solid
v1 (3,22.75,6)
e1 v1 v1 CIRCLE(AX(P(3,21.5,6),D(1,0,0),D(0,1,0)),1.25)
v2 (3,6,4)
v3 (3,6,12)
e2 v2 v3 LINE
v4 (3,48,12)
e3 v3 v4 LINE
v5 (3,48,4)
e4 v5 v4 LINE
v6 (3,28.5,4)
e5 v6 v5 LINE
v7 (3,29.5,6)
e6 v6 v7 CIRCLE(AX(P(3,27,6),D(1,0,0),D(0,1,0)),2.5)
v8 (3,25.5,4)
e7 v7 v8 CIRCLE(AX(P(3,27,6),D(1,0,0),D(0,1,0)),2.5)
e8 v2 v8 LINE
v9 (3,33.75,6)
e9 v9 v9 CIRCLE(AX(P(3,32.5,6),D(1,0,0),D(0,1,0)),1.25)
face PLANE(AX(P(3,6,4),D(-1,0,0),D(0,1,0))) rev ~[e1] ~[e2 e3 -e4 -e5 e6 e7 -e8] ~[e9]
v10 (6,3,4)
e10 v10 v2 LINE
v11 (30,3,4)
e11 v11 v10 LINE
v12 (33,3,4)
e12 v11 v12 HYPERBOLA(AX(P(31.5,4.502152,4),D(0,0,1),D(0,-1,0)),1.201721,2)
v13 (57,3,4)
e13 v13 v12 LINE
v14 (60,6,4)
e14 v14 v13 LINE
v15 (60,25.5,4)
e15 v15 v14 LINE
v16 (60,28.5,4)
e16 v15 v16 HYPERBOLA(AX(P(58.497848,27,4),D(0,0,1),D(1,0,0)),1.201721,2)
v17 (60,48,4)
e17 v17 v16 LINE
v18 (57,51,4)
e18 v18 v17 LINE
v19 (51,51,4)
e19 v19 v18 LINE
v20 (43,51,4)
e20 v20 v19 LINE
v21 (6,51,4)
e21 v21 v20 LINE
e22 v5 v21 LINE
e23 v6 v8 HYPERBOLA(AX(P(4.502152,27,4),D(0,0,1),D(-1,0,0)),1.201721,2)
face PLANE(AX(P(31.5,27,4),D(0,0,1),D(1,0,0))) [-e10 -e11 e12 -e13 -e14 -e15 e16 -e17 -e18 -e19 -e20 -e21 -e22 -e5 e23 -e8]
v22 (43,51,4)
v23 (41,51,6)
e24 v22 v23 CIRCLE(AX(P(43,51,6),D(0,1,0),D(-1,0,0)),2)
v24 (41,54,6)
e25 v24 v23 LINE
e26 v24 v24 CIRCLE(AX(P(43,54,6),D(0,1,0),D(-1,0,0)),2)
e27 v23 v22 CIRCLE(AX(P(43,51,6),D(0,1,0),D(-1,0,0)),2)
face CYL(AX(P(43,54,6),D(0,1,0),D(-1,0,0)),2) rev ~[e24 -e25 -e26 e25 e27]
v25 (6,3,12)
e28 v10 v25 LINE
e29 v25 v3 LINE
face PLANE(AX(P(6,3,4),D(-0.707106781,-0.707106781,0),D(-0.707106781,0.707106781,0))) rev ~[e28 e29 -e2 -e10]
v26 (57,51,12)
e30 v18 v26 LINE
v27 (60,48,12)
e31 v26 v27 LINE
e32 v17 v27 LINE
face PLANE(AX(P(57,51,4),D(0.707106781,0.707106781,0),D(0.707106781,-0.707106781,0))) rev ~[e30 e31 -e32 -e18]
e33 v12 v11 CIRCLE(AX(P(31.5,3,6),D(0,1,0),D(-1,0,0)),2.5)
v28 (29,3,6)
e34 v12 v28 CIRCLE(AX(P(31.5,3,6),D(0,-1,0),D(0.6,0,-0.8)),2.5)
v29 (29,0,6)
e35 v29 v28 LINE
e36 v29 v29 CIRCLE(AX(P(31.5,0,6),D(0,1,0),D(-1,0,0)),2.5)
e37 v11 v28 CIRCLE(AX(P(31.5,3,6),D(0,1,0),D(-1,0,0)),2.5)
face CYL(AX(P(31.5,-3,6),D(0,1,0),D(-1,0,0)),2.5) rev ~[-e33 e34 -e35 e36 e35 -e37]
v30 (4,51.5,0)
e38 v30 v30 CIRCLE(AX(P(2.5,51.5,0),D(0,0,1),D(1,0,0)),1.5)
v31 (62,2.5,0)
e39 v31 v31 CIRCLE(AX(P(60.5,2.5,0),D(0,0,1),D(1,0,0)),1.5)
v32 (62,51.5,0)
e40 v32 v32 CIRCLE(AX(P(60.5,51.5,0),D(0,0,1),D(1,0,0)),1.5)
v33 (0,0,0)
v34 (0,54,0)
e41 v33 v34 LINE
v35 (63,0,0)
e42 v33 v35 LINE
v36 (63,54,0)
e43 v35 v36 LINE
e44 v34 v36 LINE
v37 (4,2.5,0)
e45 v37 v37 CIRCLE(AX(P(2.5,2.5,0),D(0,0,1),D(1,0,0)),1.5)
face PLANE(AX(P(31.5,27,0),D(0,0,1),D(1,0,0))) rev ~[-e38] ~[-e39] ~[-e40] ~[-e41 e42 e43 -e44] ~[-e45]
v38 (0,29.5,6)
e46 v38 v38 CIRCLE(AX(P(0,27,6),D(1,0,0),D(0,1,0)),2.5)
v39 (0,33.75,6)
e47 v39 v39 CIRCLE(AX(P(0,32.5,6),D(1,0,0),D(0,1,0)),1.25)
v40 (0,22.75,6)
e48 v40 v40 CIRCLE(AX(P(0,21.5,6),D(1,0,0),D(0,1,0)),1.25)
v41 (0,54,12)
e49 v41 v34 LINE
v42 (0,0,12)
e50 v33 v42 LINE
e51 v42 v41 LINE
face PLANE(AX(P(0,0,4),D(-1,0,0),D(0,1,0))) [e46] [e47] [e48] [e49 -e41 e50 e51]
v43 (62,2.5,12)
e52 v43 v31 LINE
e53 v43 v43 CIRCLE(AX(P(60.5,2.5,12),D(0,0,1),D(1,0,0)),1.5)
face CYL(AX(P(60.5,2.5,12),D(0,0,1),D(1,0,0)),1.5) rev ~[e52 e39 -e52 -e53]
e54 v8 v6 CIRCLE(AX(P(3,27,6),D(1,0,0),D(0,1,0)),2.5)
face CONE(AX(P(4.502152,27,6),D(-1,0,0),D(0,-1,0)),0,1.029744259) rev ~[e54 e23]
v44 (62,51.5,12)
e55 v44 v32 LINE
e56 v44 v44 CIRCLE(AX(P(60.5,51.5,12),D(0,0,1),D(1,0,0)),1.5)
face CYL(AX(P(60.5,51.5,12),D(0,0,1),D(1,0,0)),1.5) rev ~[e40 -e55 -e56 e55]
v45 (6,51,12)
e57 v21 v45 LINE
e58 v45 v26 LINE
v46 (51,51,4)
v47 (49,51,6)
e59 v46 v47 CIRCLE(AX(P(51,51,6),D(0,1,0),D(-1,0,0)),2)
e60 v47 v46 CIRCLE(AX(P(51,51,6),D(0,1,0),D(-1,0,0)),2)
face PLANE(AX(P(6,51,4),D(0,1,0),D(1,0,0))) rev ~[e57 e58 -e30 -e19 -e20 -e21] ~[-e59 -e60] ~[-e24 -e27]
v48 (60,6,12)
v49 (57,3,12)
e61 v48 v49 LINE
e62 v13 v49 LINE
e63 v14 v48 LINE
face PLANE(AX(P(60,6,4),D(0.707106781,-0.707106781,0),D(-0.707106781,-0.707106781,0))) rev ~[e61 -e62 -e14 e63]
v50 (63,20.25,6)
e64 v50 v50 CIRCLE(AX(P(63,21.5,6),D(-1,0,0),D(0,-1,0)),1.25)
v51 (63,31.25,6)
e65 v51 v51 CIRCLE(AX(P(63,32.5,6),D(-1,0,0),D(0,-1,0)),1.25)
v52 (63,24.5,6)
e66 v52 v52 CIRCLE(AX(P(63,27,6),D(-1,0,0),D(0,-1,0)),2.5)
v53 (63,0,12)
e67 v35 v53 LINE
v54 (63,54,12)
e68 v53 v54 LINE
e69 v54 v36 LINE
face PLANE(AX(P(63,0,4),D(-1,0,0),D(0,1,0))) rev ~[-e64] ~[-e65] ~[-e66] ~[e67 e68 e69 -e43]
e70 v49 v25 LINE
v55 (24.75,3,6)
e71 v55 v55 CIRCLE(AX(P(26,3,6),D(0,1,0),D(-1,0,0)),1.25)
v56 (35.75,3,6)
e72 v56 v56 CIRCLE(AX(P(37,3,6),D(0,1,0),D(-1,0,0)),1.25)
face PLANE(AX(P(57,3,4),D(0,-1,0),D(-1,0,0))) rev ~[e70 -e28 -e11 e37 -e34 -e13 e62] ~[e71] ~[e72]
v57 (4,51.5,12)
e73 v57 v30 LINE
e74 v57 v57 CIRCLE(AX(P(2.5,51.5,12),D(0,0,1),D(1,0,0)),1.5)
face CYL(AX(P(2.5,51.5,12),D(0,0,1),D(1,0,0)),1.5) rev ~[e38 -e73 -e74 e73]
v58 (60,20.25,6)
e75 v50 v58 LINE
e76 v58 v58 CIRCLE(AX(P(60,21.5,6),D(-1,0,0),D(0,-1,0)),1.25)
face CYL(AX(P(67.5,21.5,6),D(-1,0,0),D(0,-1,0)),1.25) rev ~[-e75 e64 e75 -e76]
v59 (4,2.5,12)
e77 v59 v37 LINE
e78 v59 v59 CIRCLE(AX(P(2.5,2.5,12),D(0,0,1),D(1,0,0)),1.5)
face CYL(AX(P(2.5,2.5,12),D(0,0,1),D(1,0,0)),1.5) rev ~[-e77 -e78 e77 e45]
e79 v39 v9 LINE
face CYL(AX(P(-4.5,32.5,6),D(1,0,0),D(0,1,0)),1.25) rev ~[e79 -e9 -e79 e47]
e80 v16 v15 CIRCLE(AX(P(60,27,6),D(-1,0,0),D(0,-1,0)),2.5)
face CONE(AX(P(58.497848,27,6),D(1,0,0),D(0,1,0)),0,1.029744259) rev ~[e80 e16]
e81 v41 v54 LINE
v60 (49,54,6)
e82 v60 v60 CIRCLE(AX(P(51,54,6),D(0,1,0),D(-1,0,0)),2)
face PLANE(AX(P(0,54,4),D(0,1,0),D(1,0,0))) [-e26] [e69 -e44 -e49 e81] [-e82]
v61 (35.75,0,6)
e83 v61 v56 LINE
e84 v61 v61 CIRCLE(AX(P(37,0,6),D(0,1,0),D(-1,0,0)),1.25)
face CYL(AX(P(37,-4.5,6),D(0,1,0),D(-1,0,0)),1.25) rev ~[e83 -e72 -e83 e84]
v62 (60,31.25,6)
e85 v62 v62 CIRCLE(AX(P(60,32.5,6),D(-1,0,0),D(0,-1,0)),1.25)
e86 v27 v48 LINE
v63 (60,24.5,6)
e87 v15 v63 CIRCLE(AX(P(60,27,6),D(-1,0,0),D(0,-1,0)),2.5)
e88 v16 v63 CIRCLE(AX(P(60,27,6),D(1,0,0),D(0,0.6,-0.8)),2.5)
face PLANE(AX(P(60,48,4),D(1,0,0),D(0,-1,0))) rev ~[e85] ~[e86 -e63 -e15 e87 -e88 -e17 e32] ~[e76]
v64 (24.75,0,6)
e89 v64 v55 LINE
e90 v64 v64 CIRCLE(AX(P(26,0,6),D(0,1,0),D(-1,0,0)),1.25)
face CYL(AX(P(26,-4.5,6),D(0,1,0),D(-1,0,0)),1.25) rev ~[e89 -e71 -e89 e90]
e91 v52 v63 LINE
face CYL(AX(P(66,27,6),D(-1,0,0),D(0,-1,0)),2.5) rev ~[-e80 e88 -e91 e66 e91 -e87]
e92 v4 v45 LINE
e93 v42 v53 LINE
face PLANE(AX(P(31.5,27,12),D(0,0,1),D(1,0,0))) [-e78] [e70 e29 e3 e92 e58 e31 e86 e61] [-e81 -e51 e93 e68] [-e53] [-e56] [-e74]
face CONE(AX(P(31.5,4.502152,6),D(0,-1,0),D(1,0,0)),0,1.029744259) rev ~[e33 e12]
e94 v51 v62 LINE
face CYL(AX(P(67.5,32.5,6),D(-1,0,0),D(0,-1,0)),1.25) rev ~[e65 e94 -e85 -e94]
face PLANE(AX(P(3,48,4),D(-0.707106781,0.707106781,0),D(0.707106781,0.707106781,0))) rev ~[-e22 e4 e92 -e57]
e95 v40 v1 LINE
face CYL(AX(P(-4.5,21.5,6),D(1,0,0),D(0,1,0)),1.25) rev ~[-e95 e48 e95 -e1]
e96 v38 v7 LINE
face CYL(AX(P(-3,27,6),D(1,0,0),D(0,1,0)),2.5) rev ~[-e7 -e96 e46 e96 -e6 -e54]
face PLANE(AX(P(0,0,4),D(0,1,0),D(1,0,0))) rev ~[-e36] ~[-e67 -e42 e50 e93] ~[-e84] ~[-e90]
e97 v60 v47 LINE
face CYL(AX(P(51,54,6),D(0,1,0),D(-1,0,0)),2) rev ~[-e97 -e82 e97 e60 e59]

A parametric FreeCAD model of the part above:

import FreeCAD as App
import Part
import Sketcher
Q = App.Units.Quantity


def add_polygon(sketch, points):
    """Adds a closed chain of lines whose ends are joined by coincident constraints."""
    first, n = sketch.GeometryCount, len(points)
    for a, b in zip(points, points[1:] + points[:1]):
        sketch.addGeometry(Part.LineSegment(App.Vector(*a, 0), App.Vector(*b, 0)), False)
    for i in range(n):
        sketch.addConstraint(Sketcher.Constraint("Coincident", first + i, 2, first + (i + 1) % n, 1))

doc = App.newDocument("Part")
body = doc.addObject("PartDesign::Body", "Body")

sketch1 = doc.addObject("Sketcher::SketchObject", "Sketch")
body.addObject(sketch1)
sketch1.AttachmentSupport = (doc.XY_Plane, [""])
sketch1.MapMode = "FlatFace"
add_polygon(sketch1, [(0, 54), (0, 0), (63, 0), (63, 54)])
sketch1.addConstraint(Sketcher.Constraint("Vertical", 0))
sketch1.addConstraint(Sketcher.Constraint("Horizontal", 1))
sketch1.addConstraint(Sketcher.Constraint("Vertical", 2))
sketch1.addConstraint(Sketcher.Constraint("Horizontal", 3))
sketch1.addConstraint(Sketcher.Constraint("Coincident", 0, 2, -1, 1))
sketch1.addConstraint(Sketcher.Constraint("DistanceX", 1, 1, 1, 2, Q("63 mm")))
sketch1.addConstraint(Sketcher.Constraint("DistanceY", 0, 2, 0, 1, Q("54 mm")))
pad1 = doc.addObject("PartDesign::Pad", "Pad")
body.addObject(pad1)
pad1.Profile = sketch1
pad1.Length = 4

sketch2 = doc.addObject("Sketcher::SketchObject", "Sketch001")
body.addObject(sketch2)
sketch2.AttachmentSupport = (doc.XY_Plane, [""])
sketch2.MapMode = "FlatFace"
sketch2.AttachmentOffset = App.Placement(App.Vector(0, 0, 4), App.Rotation())
add_polygon(sketch2, [(0, 54), (0, 0), (63, 0), (63, 54)])
add_polygon(sketch2, [(3, 6), (3, 48), (6, 51), (57, 51), (60, 48), (60, 6), (57, 3), (6, 3)])
sketch2.addConstraint(Sketcher.Constraint("Vertical", 0))
sketch2.addConstraint(Sketcher.Constraint("Horizontal", 1))
sketch2.addConstraint(Sketcher.Constraint("Vertical", 2))
sketch2.addConstraint(Sketcher.Constraint("Horizontal", 3))
sketch2.addConstraint(Sketcher.Constraint("Vertical", 4))
sketch2.addConstraint(Sketcher.Constraint("Horizontal", 6))
sketch2.addConstraint(Sketcher.Constraint("Vertical", 8))
sketch2.addConstraint(Sketcher.Constraint("Horizontal", 10))
sketch2.addConstraint(Sketcher.Constraint("Coincident", 0, 2, -1, 1))
sketch2.addConstraint(Sketcher.Constraint("Perpendicular", 5, 7))
sketch2.addConstraint(Sketcher.Constraint("Perpendicular", 7, 9))
sketch2.addConstraint(Sketcher.Constraint("Perpendicular", 9, 11))
sketch2.addConstraint(Sketcher.Constraint("Horizontal", 4, 2, 7, 2))
sketch2.addConstraint(Sketcher.Constraint("Horizontal", 8, 2, 11, 2))
sketch2.addConstraint(Sketcher.Constraint("Vertical", 6, 2, 9, 2))
sketch2.addConstraint(Sketcher.Constraint("Vertical", 5, 2, 10, 2))
sketch2.addConstraint(Sketcher.Constraint("DistanceX", 1, 1, 1, 2, Q("63 mm")))
sketch2.addConstraint(Sketcher.Constraint("DistanceX", 6, 1, 6, 2, Q("51 mm")))
sketch2.addConstraint(Sketcher.Constraint("DistanceY", 0, 2, 0, 1, Q("54 mm")))
sketch2.addConstraint(Sketcher.Constraint("DistanceY", 4, 1, 4, 2, Q("42 mm")))
sketch2.addConstraint(Sketcher.Constraint("DistanceX", -1, 1, 4, 2, Q("3 mm")))
sketch2.addConstraint(Sketcher.Constraint("DistanceY", -1, 1, 4, 2, Q("48 mm")))
sketch2.addConstraint(Sketcher.Constraint("DistanceX", -1, 1, 5, 2, Q("6 mm")))
pad2 = doc.addObject("PartDesign::Pad", "Pad001")
body.addObject(pad2)
pad2.Profile = sketch2
pad2.Length = 8

sketch3 = doc.addObject("Sketcher::SketchObject", "Sketch002")
body.addObject(sketch3)
sketch3.AttachmentSupport = (doc.XZ_Plane, [""])
sketch3.MapMode = "FlatFace"
sketch3.AttachmentOffset = App.Placement(App.Vector(0, 0, -54), App.Rotation())
sketch3.addGeometry(Part.Circle(App.Vector(43, 6, 0), App.Vector(0, 0, 1), 2), False)
sketch3.addGeometry(Part.Circle(App.Vector(51, 6, 0), App.Vector(0, 0, 1), 2), False)
sketch3.addConstraint(Sketcher.Constraint("Equal", 0, 1))
sketch3.addConstraint(Sketcher.Constraint("Horizontal", 0, 3, 1, 3))
sketch3.addConstraint(Sketcher.Constraint("Diameter", 0, Q("4 mm")))
sketch3.addConstraint(Sketcher.Constraint("DistanceX", -1, 1, 0, 3, Q("43 mm")))
sketch3.addConstraint(Sketcher.Constraint("DistanceY", -1, 1, 0, 3, Q("6 mm")))
sketch3.addConstraint(Sketcher.Constraint("DistanceX", -1, 1, 1, 3, Q("51 mm")))
pocket1 = doc.addObject("PartDesign::Pocket", "Pocket")
body.addObject(pocket1)
pocket1.Profile = sketch3
pocket1.Length = 3
pocket1.Reversed = True

sketch4 = doc.addObject("Sketcher::SketchObject", "Sketch003")
body.addObject(sketch4)
sketch4.AttachmentSupport = (doc.XZ_Plane, [""])
sketch4.MapMode = "FlatFace"
sketch4.addGeometry(Part.Circle(App.Vector(26, 6, 0), App.Vector(0, 0, 1), 1.2), False)
sketch4.addGeometry(Part.Circle(App.Vector(37, 6, 0), App.Vector(0, 0, 1), 1.2), False)
sketch4.addConstraint(Sketcher.Constraint("Equal", 0, 1))
sketch4.addConstraint(Sketcher.Constraint("Horizontal", 0, 3, 1, 3))
sketch4.addConstraint(Sketcher.Constraint("Diameter", 0, Q("2.5 mm")))
sketch4.addConstraint(Sketcher.Constraint("DistanceX", -1, 1, 0, 3, Q("26 mm")))
sketch4.addConstraint(Sketcher.Constraint("DistanceY", -1, 1, 0, 3, Q("6 mm")))
sketch4.addConstraint(Sketcher.Constraint("DistanceX", -1, 1, 1, 3, Q("37 mm")))
doc.recompute()
hole = doc.addObject("PartDesign::Hole", "Hole")
body.addObject(hole)
hole.Profile = sketch4
hole.ThreadType = "None"
hole.Diameter = 2.5
hole.DepthType = "Dimension"
hole.Depth = 4.5
hole.DrillPoint = "Angled"
hole.DrillPointAngle = 118

sketch5 = doc.addObject("Sketcher::SketchObject", "Sketch004")
body.addObject(sketch5)
sketch5.AttachmentSupport = (doc.YZ_Plane, [""])
sketch5.MapMode = "FlatFace"
sketch5.addGeometry(Part.Circle(App.Vector(32.5, 6, 0), App.Vector(0, 0, 1), 1.2), False)
sketch5.addGeometry(Part.Circle(App.Vector(21.5, 6, 0), App.Vector(0, 0, 1), 1.2), False)
sketch5.addConstraint(Sketcher.Constraint("Equal", 0, 1))
sketch5.addConstraint(Sketcher.Constraint("Horizontal", 0, 3, 1, 3))
sketch5.addConstraint(Sketcher.Constraint("Diameter", 0, Q("2.5 mm")))
sketch5.addConstraint(Sketcher.Constraint("DistanceY", -1, 1, 0, 3, Q("6 mm")))
sketch5.addConstraint(Sketcher.Constraint("DistanceX", 1, 3, 0, 3, Q("11 mm")))
sketch5.addConstraint(Sketcher.Constraint("DistanceX", -1, 1, 0, 3, Q("32.5 mm")))
doc.recompute()
hole2 = doc.addObject("PartDesign::Hole", "Hole001")
body.addObject(hole2)
hole2.Profile = sketch5
hole2.ThreadType = "None"
hole2.Diameter = 2.5
hole2.DepthType = "Dimension"
hole2.Depth = 4.5
hole2.DrillPoint = "Angled"
hole2.DrillPointAngle = 118
hole2.Reversed = True

sketch6 = doc.addObject("Sketcher::SketchObject", "Sketch005")
body.addObject(sketch6)
sketch6.AttachmentSupport = (doc.YZ_Plane, [""])
sketch6.MapMode = "FlatFace"
sketch6.addGeometry(Part.Circle(App.Vector(27, 6, 0), App.Vector(0, 0, 1), 2.5), False)
sketch6.addConstraint(Sketcher.Constraint("Diameter", 0, Q("5 mm")))
sketch6.addConstraint(Sketcher.Constraint("DistanceX", -1, 1, 0, 3, Q("27 mm")))
sketch6.addConstraint(Sketcher.Constraint("DistanceY", -1, 1, 0, 3, Q("6 mm")))
doc.recompute()
hole3 = doc.addObject("PartDesign::Hole", "Hole002")
body.addObject(hole3)
hole3.Profile = sketch6
hole3.ThreadType = "None"
hole3.Diameter = 5
hole3.DepthType = "Dimension"
hole3.Depth = 3
hole3.DrillPoint = "Angled"
hole3.DrillPointAngle = 118
hole3.Reversed = True

sketch7 = doc.addObject("Sketcher::SketchObject", "Sketch006")
body.addObject(sketch7)
sketch7.AttachmentSupport = (doc.XZ_Plane, [""])
sketch7.MapMode = "FlatFace"
sketch7.addGeometry(Part.Circle(App.Vector(31.5, 6, 0), App.Vector(0, 0, 1), 2.5), False)
sketch7.addConstraint(Sketcher.Constraint("Diameter", 0, Q("5 mm")))
sketch7.addConstraint(Sketcher.Constraint("DistanceY", -1, 1, 0, 3, Q("6 mm")))
sketch7.addConstraint(Sketcher.Constraint("DistanceX", -1, 1, 0, 3, Q("31.5 mm")))
doc.recompute()
hole4 = doc.addObject("PartDesign::Hole", "Hole003")
body.addObject(hole4)
hole4.Profile = sketch7
hole4.ThreadType = "None"
hole4.Diameter = 5
hole4.DepthType = "Dimension"
hole4.Depth = 3
hole4.DrillPoint = "Angled"
hole4.DrillPointAngle = 118

sketch8 = doc.addObject("Sketcher::SketchObject", "Sketch007")
body.addObject(sketch8)
sketch8.AttachmentSupport = (doc.YZ_Plane, [""])
sketch8.MapMode = "FlatFace"
sketch8.AttachmentOffset = App.Placement(App.Vector(0, 0, 63), App.Rotation())
sketch8.addGeometry(Part.Circle(App.Vector(21.5, 6, 0), App.Vector(0, 0, 1), 1.2), False)
sketch8.addGeometry(Part.Circle(App.Vector(32.5, 6, 0), App.Vector(0, 0, 1), 1.2), False)
sketch8.addConstraint(Sketcher.Constraint("Equal", 0, 1))
sketch8.addConstraint(Sketcher.Constraint("Horizontal", 0, 3, 1, 3))
sketch8.addConstraint(Sketcher.Constraint("Diameter", 0, Q("2.5 mm")))
sketch8.addConstraint(Sketcher.Constraint("DistanceY", -1, 1, 0, 3, Q("6 mm")))
sketch8.addConstraint(Sketcher.Constraint("DistanceX", 0, 3, 1, 3, Q("11 mm")))
sketch8.addConstraint(Sketcher.Constraint("DistanceX", -1, 1, 0, 3, Q("21.5 mm")))
doc.recompute()
hole5 = doc.addObject("PartDesign::Hole", "Hole004")
body.addObject(hole5)
hole5.Profile = sketch8
hole5.ThreadType = "None"
hole5.Diameter = 2.5
hole5.DepthType = "Dimension"
hole5.Depth = 4.5
hole5.DrillPoint = "Angled"
hole5.DrillPointAngle = 118

sketch9 = doc.addObject("Sketcher::SketchObject", "Sketch008")
body.addObject(sketch9)
sketch9.AttachmentSupport = (doc.YZ_Plane, [""])
sketch9.MapMode = "FlatFace"
sketch9.AttachmentOffset = App.Placement(App.Vector(0, 0, 63), App.Rotation())
sketch9.addGeometry(Part.Circle(App.Vector(27, 6, 0), App.Vector(0, 0, 1), 2.5), False)
sketch9.addConstraint(Sketcher.Constraint("Diameter", 0, Q("5 mm")))
sketch9.addConstraint(Sketcher.Constraint("DistanceX", -1, 1, 0, 3, Q("27 mm")))
sketch9.addConstraint(Sketcher.Constraint("DistanceY", -1, 1, 0, 3, Q("6 mm")))
doc.recompute()
hole6 = doc.addObject("PartDesign::Hole", "Hole005")
body.addObject(hole6)
hole6.Profile = sketch9
hole6.ThreadType = "None"
hole6.Diameter = 5
hole6.DepthType = "Dimension"
hole6.Depth = 3
hole6.DrillPoint = "Angled"
hole6.DrillPointAngle = 118

sketch10 = doc.addObject("Sketcher::SketchObject", "Sketch009")
body.addObject(sketch10)
sketch10.AttachmentSupport = (doc.XY_Plane, [""])
sketch10.MapMode = "FlatFace"
sketch10.AttachmentOffset = App.Placement(App.Vector(0, 0, 12), App.Rotation())
sketch10.addGeometry(Part.Circle(App.Vector(2.5, 51.5, 0), App.Vector(0, 0, 1), 1.5), False)
sketch10.addGeometry(Part.Circle(App.Vector(60.5, 51.5, 0), App.Vector(0, 0, 1), 1.5), False)
sketch10.addGeometry(Part.Circle(App.Vector(2.5, 2.5, 0), App.Vector(0, 0, 1), 1.5), False)
sketch10.addGeometry(Part.Circle(App.Vector(60.5, 2.5, 0), App.Vector(0, 0, 1), 1.5), False)
sketch10.addConstraint(Sketcher.Constraint("Equal", 0, 1))
sketch10.addConstraint(Sketcher.Constraint("Equal", 1, 2))
sketch10.addConstraint(Sketcher.Constraint("Equal", 2, 3))
sketch10.addConstraint(Sketcher.Constraint("Horizontal", 0, 3, 1, 3))
sketch10.addConstraint(Sketcher.Constraint("Horizontal", 2, 3, 3, 3))
sketch10.addConstraint(Sketcher.Constraint("Vertical", 0, 3, 2, 3))
sketch10.addConstraint(Sketcher.Constraint("Vertical", 1, 3, 3, 3))
sketch10.addConstraint(Sketcher.Constraint("Diameter", 0, Q("3 mm")))
sketch10.addConstraint(Sketcher.Constraint("DistanceX", 0, 3, 1, 3, Q("58 mm")))
sketch10.addConstraint(Sketcher.Constraint("DistanceY", 2, 3, 0, 3, Q("49 mm")))
sketch10.addConstraint(Sketcher.Constraint("DistanceX", -1, 1, 0, 3, Q("2.5 mm")))
sketch10.addConstraint(Sketcher.Constraint("DistanceY", -1, 1, 0, 3, Q("51.5 mm")))
pocket2 = doc.addObject("PartDesign::Pocket", "Pocket001")
body.addObject(pocket2)
pocket2.Profile = sketch10
pocket2.Length = 12

doc.recompute()
